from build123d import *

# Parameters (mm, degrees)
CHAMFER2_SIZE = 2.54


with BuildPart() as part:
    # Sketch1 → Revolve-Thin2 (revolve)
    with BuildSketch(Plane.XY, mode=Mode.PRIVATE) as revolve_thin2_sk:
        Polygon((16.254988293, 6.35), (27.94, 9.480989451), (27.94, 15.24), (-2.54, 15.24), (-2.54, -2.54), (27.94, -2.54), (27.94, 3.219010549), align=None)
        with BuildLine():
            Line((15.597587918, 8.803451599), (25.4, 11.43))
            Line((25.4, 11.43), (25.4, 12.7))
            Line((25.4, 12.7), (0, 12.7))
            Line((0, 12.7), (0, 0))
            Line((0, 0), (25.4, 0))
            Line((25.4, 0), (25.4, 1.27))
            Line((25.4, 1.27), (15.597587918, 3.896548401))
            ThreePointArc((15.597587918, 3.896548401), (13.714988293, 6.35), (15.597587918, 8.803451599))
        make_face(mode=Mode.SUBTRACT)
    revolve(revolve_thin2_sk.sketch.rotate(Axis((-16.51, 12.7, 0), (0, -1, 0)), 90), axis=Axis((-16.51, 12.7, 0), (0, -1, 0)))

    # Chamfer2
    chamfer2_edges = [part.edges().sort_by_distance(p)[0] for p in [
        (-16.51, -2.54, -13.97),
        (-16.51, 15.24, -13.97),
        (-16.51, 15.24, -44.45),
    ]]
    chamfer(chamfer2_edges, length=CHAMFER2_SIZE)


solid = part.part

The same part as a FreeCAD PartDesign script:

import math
import FreeCAD as App
import Part
import Sketcher
Q = App.Units.Quantity


def edges_at(feature, points):
    """Names of the edges that pass closest to the given points."""
    edges = feature.Shape.Edges
    near = lambda p: min(range(len(edges)), key=lambda i: edges[i].distToShape(Part.Vertex(*p))[0])
    return sorted({f"Edge{near(p) + 1}" for p in points})


def add_polygon(sketch, points):
    """Adds a closed chain of lines whose ends are joined by coincident constraints."""
    first, n = sketch.GeometryCount, len(points)
    for a, b in zip(points, points[1:] + points[:1]):
        sketch.addGeometry(Part.LineSegment(App.Vector(*a, 0), App.Vector(*b, 0)), False)
    for i in range(n):
        sketch.addConstraint(Sketcher.Constraint("Coincident", first + i, 2, first + (i + 1) % n, 1))

doc = App.newDocument("Part")
body = doc.addObject("PartDesign::Body", "Body")

# Sketch on XY plane
sketch1 = body.newObject("Sketcher::SketchObject", "Sketch")
sketch1.AttachmentSupport = (doc.getObject("XY_Plane"), [""])
sketch1.MapMode = "FlatFace"
add_polygon(sketch1, [(16.3, 6.3), (27.9, 9.5), (27.9, 15.2), (-2.5, 15.2), (-2.5, -2.5), (27.9, -2.5), (27.9, 3.2)])  # lines 0-6
sketch1.addGeometry(Part.LineSegment(App.Vector(25.4, 11.4, 0), App.Vector(15.6, 8.8, 0)), False)  # 7
sketch1.addGeometry(Part.ArcOfCircle(Part.Circle(App.Vector(16.3, 6.3, 0), App.Vector(0, 0, 1), 2.5), math.radians(105), math.radians(255)), False)  # 8
sketch1.addGeometry(Part.LineSegment(App.Vector(15.6, 3.9, 0), App.Vector(25.4, 1.3, 0)), False)  # 9
sketch1.addGeometry(Part.LineSegment(App.Vector(25.4, 1.3, 0), App.Vector(25.4, 0, 0)), False)  # 10
sketch1.addGeometry(Part.LineSegment(App.Vector(25.4, 0, 0), App.Vector(0, 0, 0)), False)  # 11
sketch1.addGeometry(Part.LineSegment(App.Vector(0, 0, 0), App.Vector(0, 12.7, 0)), False)  # 12
sketch1.addGeometry(Part.LineSegment(App.Vector(0, 12.7, 0), App.Vector(25.4, 12.7, 0)), False)  # 13
sketch1.addGeometry(Part.LineSegment(App.Vector(25.4, 12.7, 0), App.Vector(25.4, 11.4, 0)), False)  # 14
sketch1.addGeometry(Part.LineSegment(App.Vector(-16.5, 15.2, 0), App.Vector(-16.5, -2.5, 0)), True)  # axis
sketch1.addConstraint(Sketcher.Constraint("Tangent", 7, 2, 8, 1))
sketch1.addConstraint(Sketcher.Constraint("Tangent", 8, 2, 9, 1))
sketch1.addConstraint(Sketcher.Constraint("Coincident", 9, 2, 10, 1))
sketch1.addConstraint(Sketcher.Constraint("Coincident", 10, 2, 11, 1))
sketch1.addConstraint(Sketcher.Constraint("Coincident", 11, 2, 12, 1))
sketch1.addConstraint(Sketcher.Constraint("Coincident", 12, 2, 13, 1))
sketch1.addConstraint(Sketcher.Constraint("Coincident", 13, 2, 14, 1))
sketch1.addConstraint(Sketcher.Constraint("Coincident", 14, 2, 7, 1))
sketch1.addConstraint(Sketcher.Constraint("Vertical", 1))
sketch1.addConstraint(Sketcher.Constraint("Horizontal", 2))
sketch1.addConstraint(Sketcher.Constraint("Vertical", 3))
sketch1.addConstraint(Sketcher.Constraint("Horizontal", 4))
sketch1.addConstraint(Sketcher.Constraint("Vertical", 5))
sketch1.addConstraint(Sketcher.Constraint("Vertical", 10))
sketch1.addConstraint(Sketcher.Constraint("Horizontal", 11))
sketch1.addConstraint(Sketcher.Constraint("Vertical", 12))
sketch1.addConstraint(Sketcher.Constraint("Horizontal", 13))
sketch1.addConstraint(Sketcher.Constraint("Vertical", 14))
sketch1.addConstraint(Sketcher.Constraint("Vertical", 15))
sketch1.addConstraint(Sketcher.Constraint("Coincident", 11, 2, -1, 1))
sketch1.addConstraint(Sketcher.Constraint("Coincident", 6, 2, 8, 3))
sketch1.addConstraint(Sketcher.Constraint("Parallel", 0, 7))
sketch1.addConstraint(Sketcher.Constraint("Parallel", 6, 9))
sketch1.addConstraint(Sketcher.Constraint("Horizontal", 2, 2, 15, 1))
sketch1.addConstraint(Sketcher.Constraint("Horizontal", 4, 2, 15, 2))
sketch1.addConstraint(Sketcher.Constraint("Vertical", 1, 2, 4, 2))
sketch1.addConstraint(Sketcher.Constraint("Vertical", 7, 2, 8, 2))
sketch1.addConstraint(Sketcher.Constraint("Vertical", 10, 2, 13, 2))
sketch1.addConstraint(Sketcher.Constraint("Equal", 1, 5))
sketch1.addConstraint(Sketcher.Constraint("Equal", 10, 14))
sketch1.addConstraint(Sketcher.Constraint("Radius", 8, Q("0.1 in")))
sketch1.addConstraint(Sketcher.Constraint("DistanceX", 11, 2, 11, 1, Q("1 in")))
sketch1.addConstraint(Sketcher.Constraint("DistanceX", 2, 2, 2, 1, Q("1.2 in")))
sketch1.addConstraint(Sketcher.Constraint("DistanceY", 3, 2, 3, 1, Q("0.7 in")))
sketch1.addConstraint(Sketcher.Constraint("DistanceY", 12, 1, 12, 2, Q("0.5 in")))
sketch1.addConstraint(Sketcher.Constraint("Angle", 0, Q("15 deg")))
sketch1.addConstraint(Sketcher.Constraint("DistanceY", 10, 2, 10, 1, Q("0.05 in")))
sketch1.addConstraint(Sketcher.Constraint("DistanceX", -1, 1, 0, 2, Q("1.1 in")))
sketch1.addConstraint(Sketcher.Constraint("DistanceX", 15, 1, -1, 1, Q("0.65 in")))
revolution = body.newObject("PartDesign::Revolution", "Revolution")
revolution.Profile = sketch1
revolution.ReferenceAxis = (sketch1, ["Axis0"])
revolution.Angle = 360
doc.recompute()

chamfer = body.newObject("PartDesign::Chamfer", "Chamfer")
chamfer.Base = (revolution, edges_at(revolution, [(-16.51, -2.54, -13.97), (-16.51, 15.24, -13.97), (-16.51, 15.24, -44.45)]))
chamfer.Size = Q("0.1 in")

doc.recompute()
